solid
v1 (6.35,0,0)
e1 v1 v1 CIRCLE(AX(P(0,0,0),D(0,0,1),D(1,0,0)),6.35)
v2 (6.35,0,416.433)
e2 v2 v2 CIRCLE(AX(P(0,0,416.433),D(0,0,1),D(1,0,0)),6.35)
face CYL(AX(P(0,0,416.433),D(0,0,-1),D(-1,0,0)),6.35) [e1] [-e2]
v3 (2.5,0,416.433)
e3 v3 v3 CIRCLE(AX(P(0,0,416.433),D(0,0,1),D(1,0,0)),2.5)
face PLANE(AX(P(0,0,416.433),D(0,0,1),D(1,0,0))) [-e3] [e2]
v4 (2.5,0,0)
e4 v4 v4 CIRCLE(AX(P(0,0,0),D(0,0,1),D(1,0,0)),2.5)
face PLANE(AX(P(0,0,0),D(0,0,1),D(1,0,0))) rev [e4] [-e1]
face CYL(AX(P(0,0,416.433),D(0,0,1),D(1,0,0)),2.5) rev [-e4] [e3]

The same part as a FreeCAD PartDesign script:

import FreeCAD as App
import Part
import Sketcher
Q = App.Units.Quantity

doc = App.newDocument("Part")
body = doc.addObject("PartDesign::Body", "Body")

# Sketch on XY plane
sketch1 = body.newObject("Sketcher::SketchObject", "Sketch")
sketch1.AttachmentSupport = (doc.getObject("XY_Plane"), [""])
sketch1.MapMode = "FlatFace"
sketch1.addGeometry(Part.Circle(App.Vector(0, 0, 0), App.Vector(0, 0, 1), 6.35), False)
sketch1.addConstraint(Sketcher.Constraint("Coincident", 0, 3, -1, 1))
sketch1.addConstraint(Sketcher.Constraint("Diameter", 0, Q("0.5 in")))
pad1 = body.newObject("PartDesign::Pad", "Pad")
pad1.Profile = sketch1
pad1.Length = Q("16.395 in")

# Sketch on XY plane
sketch2 = body.newObject("Sketcher::SketchObject", "Sketch001")
sketch2.AttachmentSupport = (doc.getObject("XY_Plane"), [""])
sketch2.MapMode = "FlatFace"
sketch2.AttachmentOffset = App.Placement(App.Vector(0, 0, 16.395 * 25.4), App.Rotation())
sketch2.addGeometry(Part.Circle(App.Vector(0, 0, 0), App.Vector(0, 0, 1), 2.5), False)
sketch2.addConstraint(Sketcher.Constraint("Coincident", 0, 3, -1, 1))
sketch2.addConstraint(Sketcher.Constraint("Diameter", 0, Q("5 mm")))
doc.recompute()
hole = body.newObject("PartDesign::Hole", "Hole")
hole.Profile = sketch2
hole.ThreadType = "None"
hole.Diameter = 5
hole.DepthType = "ThroughAll"

doc.recompute()
